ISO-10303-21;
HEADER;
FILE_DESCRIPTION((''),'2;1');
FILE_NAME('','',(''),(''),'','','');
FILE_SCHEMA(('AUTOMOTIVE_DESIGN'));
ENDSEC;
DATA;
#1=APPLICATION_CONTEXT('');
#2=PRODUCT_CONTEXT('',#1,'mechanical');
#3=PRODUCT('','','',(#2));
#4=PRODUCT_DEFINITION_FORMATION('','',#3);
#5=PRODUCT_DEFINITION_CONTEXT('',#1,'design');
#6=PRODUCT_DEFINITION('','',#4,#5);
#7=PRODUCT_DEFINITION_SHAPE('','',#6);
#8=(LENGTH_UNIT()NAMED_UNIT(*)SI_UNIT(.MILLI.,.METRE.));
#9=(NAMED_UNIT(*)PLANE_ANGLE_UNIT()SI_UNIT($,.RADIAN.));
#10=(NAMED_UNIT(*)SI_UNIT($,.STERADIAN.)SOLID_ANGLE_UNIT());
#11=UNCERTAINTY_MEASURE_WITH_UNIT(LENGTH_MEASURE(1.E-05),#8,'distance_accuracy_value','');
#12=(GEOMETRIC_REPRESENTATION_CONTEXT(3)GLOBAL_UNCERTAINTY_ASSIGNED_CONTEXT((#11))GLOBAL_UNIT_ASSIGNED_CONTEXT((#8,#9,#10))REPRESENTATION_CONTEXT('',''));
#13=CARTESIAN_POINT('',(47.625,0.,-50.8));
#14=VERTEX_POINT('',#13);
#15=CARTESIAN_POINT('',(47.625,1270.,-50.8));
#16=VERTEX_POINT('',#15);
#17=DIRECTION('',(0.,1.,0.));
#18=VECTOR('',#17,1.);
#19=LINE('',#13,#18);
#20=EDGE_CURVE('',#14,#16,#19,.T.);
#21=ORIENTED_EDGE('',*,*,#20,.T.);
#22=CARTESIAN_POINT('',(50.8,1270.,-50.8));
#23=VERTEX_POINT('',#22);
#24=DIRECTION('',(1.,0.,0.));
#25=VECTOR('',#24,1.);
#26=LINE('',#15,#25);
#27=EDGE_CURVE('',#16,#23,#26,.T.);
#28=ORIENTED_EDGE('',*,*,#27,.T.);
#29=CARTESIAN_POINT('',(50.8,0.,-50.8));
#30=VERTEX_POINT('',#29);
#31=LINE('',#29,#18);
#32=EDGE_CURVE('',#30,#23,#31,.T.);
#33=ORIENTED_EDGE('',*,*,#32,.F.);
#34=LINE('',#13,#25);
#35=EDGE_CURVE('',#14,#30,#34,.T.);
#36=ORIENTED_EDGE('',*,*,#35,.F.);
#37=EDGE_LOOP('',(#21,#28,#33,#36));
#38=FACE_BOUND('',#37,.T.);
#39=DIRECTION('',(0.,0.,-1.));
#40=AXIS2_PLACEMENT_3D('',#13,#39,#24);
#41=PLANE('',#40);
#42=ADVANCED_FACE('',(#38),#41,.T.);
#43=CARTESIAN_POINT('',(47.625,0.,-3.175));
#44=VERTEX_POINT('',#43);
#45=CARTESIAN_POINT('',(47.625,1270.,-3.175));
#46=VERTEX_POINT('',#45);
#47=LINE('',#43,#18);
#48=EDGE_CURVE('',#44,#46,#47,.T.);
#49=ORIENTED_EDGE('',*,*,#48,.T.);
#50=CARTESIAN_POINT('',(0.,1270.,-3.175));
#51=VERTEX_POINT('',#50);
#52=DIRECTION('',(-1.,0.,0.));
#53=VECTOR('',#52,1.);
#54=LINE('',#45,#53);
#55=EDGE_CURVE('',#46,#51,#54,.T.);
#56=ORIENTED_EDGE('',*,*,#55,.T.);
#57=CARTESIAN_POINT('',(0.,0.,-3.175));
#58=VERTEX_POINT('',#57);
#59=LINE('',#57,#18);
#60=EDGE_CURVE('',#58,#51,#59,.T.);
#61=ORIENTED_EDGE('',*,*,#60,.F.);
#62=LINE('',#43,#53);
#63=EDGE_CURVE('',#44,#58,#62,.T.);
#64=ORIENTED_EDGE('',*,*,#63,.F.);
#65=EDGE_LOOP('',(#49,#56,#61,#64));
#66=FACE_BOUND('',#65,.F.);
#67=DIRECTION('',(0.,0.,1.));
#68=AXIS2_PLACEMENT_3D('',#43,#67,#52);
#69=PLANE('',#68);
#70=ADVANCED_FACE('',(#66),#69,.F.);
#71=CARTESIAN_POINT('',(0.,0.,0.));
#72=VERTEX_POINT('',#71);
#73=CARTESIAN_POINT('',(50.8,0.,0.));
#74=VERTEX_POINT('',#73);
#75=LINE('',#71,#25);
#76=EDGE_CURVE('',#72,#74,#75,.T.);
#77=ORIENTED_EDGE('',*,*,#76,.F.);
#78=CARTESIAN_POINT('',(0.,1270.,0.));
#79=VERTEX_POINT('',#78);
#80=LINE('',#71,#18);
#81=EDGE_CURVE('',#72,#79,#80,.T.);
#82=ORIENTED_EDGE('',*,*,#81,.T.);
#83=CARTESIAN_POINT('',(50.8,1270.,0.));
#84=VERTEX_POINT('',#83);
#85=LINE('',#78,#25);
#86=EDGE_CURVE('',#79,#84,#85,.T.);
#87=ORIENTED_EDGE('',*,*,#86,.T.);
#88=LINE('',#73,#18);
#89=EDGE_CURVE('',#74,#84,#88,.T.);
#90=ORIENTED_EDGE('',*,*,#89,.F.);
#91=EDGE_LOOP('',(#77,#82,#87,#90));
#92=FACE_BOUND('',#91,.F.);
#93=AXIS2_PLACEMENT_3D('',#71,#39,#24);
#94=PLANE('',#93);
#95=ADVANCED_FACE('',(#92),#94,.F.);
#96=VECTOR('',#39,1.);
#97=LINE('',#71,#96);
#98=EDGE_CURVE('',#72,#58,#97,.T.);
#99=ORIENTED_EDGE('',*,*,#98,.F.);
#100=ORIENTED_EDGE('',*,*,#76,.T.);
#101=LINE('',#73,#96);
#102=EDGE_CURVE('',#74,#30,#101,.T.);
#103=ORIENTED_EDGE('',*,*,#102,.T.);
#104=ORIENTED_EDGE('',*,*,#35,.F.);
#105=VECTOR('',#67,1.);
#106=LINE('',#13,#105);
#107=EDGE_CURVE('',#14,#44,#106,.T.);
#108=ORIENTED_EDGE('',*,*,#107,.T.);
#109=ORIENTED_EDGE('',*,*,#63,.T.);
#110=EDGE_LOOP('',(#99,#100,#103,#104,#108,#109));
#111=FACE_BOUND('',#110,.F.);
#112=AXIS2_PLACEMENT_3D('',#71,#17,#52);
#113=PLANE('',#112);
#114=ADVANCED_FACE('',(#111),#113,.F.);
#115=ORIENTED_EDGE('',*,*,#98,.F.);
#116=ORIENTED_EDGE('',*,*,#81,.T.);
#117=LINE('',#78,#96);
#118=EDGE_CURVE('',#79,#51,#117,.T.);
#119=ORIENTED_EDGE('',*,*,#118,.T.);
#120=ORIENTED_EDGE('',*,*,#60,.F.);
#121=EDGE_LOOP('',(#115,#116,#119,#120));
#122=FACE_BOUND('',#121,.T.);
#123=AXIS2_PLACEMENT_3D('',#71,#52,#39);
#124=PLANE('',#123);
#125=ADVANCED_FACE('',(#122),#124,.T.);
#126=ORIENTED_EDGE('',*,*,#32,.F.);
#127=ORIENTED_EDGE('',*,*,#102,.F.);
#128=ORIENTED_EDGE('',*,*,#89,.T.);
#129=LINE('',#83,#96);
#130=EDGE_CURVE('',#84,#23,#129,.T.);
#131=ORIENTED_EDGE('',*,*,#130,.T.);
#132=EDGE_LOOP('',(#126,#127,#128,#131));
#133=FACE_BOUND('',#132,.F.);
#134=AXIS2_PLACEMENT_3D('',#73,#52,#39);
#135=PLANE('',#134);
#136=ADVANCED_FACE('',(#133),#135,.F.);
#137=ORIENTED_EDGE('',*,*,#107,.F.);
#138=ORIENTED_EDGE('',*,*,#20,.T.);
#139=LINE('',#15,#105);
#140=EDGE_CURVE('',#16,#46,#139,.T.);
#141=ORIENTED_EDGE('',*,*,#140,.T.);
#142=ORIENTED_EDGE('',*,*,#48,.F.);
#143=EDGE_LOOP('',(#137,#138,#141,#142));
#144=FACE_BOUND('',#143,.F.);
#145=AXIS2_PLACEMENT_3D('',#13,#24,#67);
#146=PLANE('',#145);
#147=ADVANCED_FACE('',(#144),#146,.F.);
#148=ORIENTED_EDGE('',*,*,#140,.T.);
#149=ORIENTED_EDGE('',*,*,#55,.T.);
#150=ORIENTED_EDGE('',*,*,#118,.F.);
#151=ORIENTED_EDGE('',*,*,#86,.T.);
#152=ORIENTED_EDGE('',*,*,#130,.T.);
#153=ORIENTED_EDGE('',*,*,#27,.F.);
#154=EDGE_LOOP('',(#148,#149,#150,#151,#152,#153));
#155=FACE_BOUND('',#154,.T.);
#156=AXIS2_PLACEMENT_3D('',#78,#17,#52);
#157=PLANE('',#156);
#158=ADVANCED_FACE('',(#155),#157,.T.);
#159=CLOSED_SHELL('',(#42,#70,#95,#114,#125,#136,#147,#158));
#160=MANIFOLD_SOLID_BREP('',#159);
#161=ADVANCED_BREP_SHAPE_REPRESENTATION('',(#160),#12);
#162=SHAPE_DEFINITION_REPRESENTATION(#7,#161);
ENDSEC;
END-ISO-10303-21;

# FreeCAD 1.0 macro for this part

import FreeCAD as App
import Part
import Sketcher
Q = App.Units.Quantity


def add_polygon(sketch, points):
    """Adds a closed chain of lines whose ends are joined by coincident constraints."""
    first, n = sketch.GeometryCount, len(points)
    for a, b in zip(points, points[1:] + points[:1]):
        sketch.addGeometry(Part.LineSegment(App.Vector(*a, 0), App.Vector(*b, 0)), False)
    for i in range(n):
        sketch.addConstraint(Sketcher.Constraint("Coincident", first + i, 2, first + (i + 1) % n, 1))

doc = App.newDocument("Part")
body = doc.addObject("PartDesign::Body", "Body")

sketch1 = body.newObject("Sketcher::SketchObject", "Sketch")
sketch1.AttachmentSupport = (doc.getObject("XZ_Plane"), [""])
sketch1.MapMode = "FlatFace"
add_polygon(sketch1, [(0, -3.2), (0, 0), (50.8, 0), (50.8, -50.8), (47.6, -50.8), (47.6, -3.2)])
sketch1.addConstraint([
    Sketcher.Constraint("Vertical", 0),
    Sketcher.Constraint("Horizontal", 1),
    Sketcher.Constraint("Vertical", 2),
    Sketcher.Constraint("Horizontal", 3),
    Sketcher.Constraint("Vertical", 4),
    Sketcher.Constraint("Horizontal", 5),
    Sketcher.Constraint("Coincident", 0, 2, -1, 1),
    Sketcher.Constraint("Equal", 3, 0),
    Sketcher.Constraint("Equal", 1, 2),
    Sketcher.Constraint("DistanceX", 1, 1, 1, 2, Q("2 in")),
    Sketcher.Constraint("DistanceX", 3, 2, 3, 1, Q("0.125 in")),
])
pad1 = body.newObject("PartDesign::Pad", "Pad")
pad1.Profile = sketch1
pad1.Length = Q("50 in")
pad1.Reversed = True

doc.recompute()
